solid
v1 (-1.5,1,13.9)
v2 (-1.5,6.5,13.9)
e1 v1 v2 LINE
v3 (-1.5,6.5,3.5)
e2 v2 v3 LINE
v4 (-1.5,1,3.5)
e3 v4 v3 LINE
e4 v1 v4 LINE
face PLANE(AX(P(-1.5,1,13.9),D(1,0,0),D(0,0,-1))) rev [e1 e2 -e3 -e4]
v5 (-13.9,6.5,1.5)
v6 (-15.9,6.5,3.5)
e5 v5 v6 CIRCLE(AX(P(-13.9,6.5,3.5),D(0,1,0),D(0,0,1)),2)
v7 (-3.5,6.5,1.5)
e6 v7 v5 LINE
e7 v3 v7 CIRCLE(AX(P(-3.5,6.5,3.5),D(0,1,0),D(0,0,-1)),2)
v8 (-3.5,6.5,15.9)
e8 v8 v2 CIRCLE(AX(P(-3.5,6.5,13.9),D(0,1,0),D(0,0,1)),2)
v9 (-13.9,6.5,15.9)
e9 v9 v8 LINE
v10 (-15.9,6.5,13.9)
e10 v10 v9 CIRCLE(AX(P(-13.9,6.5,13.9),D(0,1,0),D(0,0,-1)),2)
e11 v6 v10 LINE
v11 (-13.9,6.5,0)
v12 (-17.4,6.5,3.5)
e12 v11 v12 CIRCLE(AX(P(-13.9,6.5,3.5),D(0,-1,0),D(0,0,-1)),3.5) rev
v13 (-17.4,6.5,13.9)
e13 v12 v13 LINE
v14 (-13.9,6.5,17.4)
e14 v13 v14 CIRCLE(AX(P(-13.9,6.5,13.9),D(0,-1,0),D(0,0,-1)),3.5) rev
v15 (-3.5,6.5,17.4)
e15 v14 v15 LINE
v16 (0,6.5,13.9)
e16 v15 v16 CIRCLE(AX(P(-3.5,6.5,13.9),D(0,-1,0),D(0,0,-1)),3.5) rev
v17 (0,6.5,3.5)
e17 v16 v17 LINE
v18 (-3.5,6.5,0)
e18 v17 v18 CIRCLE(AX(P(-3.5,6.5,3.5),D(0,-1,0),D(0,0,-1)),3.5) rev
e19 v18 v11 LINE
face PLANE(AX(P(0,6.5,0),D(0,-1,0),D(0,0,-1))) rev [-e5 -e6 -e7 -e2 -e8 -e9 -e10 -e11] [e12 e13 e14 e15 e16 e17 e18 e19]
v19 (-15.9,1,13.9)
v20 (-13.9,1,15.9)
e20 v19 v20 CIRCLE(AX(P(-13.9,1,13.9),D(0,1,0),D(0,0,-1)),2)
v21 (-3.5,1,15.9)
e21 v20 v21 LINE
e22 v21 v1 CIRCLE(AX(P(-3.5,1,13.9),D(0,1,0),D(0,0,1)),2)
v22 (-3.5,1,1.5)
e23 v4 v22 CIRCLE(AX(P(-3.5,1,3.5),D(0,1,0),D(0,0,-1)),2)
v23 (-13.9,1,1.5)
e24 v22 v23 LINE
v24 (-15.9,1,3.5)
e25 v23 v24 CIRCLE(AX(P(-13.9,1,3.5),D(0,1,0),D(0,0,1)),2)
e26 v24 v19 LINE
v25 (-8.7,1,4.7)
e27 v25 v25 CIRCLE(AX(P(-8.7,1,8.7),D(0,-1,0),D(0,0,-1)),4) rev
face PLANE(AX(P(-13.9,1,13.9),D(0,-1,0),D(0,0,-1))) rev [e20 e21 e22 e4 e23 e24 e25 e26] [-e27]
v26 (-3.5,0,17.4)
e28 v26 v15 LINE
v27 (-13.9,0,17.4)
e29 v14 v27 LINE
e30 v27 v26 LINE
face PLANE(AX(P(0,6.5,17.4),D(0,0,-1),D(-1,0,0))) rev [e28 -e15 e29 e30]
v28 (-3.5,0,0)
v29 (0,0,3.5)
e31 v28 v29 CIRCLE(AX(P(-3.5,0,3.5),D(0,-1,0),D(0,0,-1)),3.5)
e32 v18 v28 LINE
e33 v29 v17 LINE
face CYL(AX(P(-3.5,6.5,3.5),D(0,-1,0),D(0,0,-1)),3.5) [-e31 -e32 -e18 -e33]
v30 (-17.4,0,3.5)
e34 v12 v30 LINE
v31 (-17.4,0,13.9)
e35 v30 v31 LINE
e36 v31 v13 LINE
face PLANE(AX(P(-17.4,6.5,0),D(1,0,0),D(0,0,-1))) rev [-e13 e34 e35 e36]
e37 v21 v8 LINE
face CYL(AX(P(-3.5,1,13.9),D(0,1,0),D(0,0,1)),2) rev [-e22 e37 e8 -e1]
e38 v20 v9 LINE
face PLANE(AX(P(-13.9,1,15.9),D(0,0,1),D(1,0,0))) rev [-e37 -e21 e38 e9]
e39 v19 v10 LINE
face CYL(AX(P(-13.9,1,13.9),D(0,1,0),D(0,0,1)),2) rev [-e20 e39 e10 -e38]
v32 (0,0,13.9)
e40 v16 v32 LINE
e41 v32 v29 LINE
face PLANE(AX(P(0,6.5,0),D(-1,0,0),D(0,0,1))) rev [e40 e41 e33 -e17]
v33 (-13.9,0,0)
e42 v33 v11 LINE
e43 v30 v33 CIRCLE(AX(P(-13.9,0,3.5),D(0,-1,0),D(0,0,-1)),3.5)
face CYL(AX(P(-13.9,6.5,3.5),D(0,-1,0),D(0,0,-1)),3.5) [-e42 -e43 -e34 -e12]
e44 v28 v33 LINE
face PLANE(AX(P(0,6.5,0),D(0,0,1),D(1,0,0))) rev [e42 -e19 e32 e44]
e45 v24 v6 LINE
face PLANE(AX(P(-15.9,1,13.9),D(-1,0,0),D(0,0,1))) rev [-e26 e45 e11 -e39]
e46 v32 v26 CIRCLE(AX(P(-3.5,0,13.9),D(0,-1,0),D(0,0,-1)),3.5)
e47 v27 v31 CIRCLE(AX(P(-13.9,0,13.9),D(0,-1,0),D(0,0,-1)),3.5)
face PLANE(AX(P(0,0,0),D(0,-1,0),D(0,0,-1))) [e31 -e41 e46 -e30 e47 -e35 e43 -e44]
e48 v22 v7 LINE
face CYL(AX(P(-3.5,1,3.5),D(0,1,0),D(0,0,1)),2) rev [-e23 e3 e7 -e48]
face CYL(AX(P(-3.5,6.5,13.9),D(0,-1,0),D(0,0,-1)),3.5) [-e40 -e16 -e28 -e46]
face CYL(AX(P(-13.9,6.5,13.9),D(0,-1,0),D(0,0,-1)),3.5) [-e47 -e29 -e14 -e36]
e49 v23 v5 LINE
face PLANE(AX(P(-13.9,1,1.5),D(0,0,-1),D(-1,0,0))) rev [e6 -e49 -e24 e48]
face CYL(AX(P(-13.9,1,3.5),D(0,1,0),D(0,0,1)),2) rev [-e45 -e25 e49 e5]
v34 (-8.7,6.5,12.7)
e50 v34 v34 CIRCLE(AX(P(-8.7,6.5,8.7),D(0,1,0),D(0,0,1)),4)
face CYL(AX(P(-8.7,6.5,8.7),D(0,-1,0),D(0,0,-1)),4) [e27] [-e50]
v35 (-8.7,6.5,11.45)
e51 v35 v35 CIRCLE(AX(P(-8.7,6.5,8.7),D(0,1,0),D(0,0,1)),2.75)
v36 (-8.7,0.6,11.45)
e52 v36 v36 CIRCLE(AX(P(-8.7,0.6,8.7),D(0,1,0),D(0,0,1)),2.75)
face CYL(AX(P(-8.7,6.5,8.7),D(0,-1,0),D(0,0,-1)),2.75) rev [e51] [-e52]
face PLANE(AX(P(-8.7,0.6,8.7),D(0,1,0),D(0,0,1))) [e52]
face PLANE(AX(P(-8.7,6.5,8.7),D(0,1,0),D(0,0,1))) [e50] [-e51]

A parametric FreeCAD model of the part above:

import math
import FreeCAD as App
import Part
import Sketcher

V = App.Vector


def edges_at(feature, points):
    """Names of the edges that pass closest to the given points."""
    edges = feature.Shape.Edges
    near = lambda p: min(range(len(edges)), key=lambda i: edges[i].distToShape(Part.Vertex(*p))[0])
    return sorted({f"Edge{near(p) + 1}" for p in points})

doc = App.newDocument("Part")
body = doc.addObject("PartDesign::Body", "Body")

# Sketch on XZ plane
sketch1 = body.newObject("Sketcher::SketchObject", "Sketch")
sketch1.AttachmentSupport = (doc.getObject("XZ_Plane"), [""])
sketch1.MapMode = "FlatFace"
sketch1.addGeometry(Part.LineSegment(V(-17, 0, 0), V(-17, 17, 0)), False)
sketch1.addGeometry(Part.LineSegment(V(-17, 17, 0), V(0, 17, 0)), False)
sketch1.addGeometry(Part.LineSegment(V(0, 17, 0), V(0, 0, 0)), False)
sketch1.addGeometry(Part.LineSegment(V(0, 0, 0), V(-17, 0, 0)), False)
sketch1.addConstraint(Sketcher.Constraint("Coincident", 0, 2, 1, 1))
sketch1.addConstraint(Sketcher.Constraint("Coincident", 1, 2, 2, 1))
sketch1.addConstraint(Sketcher.Constraint("Coincident", 2, 2, 3, 1))
sketch1.addConstraint(Sketcher.Constraint("Coincident", 3, 2, 0, 1))
sketch1.addConstraint(Sketcher.Constraint("Vertical", 0))
sketch1.addConstraint(Sketcher.Constraint("Horizontal", 1))
sketch1.addConstraint(Sketcher.Constraint("Vertical", 2))
sketch1.addConstraint(Sketcher.Constraint("Horizontal", 3))
sketch1.addConstraint(Sketcher.Constraint("Coincident", 2, 2, -1, 1))
sketch1.addConstraint(Sketcher.Constraint("Equal", 3, 0))
sketch1.addConstraint(Sketcher.Constraint("DistanceX", 1, 1, 1, 2, 17.4))
pad1 = body.newObject("PartDesign::Pad", "Pad")
pad1.Profile = sketch1
pad1.Length = 6.5
pad1.Reversed = True
doc.recompute()

fillet = body.newObject("PartDesign::Fillet", "Fillet")
fillet.Base = (pad1, edges_at(pad1, [
    (0, 3.25, 17.4),
    (-17.4, 3.25, 17.4),
    (-17.4, 3.25, 0),
    (0, 3.25, 0),
]))
fillet.Radius = 3.5

# Sketch on XZ plane
sketch2 = body.newObject("Sketcher::SketchObject", "Sketch001")
sketch2.AttachmentSupport = (doc.getObject("XZ_Plane"), [""])
sketch2.MapMode = "FlatFace"
sketch2.AttachmentOffset = App.Placement(V(0, 0, -6.5), App.Rotation())
sketch2.addGeometry(Part.LineSegment(V(-13.9, 15.9, 0), V(-3.5, 15.9, 0)), False)
sketch2.addGeometry(Part.ArcOfCircle(Part.Circle(V(-3.5, 13.9, 0), V(0, 0, 1), 2), math.radians(0), math.radians(90)), False)
sketch2.addGeometry(Part.LineSegment(V(-1.5, 13.9, 0), V(-1.5, 3.5, 0)), False)
sketch2.addGeometry(Part.ArcOfCircle(Part.Circle(V(-3.5, 3.5, 0), V(0, 0, 1), 2), math.radians(-90), math.radians(0)), False)
sketch2.addGeometry(Part.LineSegment(V(-3.5, 1.5, 0), V(-13.9, 1.5, 0)), False)
sketch2.addGeometry(Part.ArcOfCircle(Part.Circle(V(-13.9, 3.5, 0), V(0, 0, 1), 2), math.radians(-180), math.radians(-90)), False)
sketch2.addGeometry(Part.LineSegment(V(-15.9, 3.5, 0), V(-15.9, 13.9, 0)), False)
sketch2.addGeometry(Part.ArcOfCircle(Part.Circle(V(-13.9, 13.9, 0), V(0, 0, 1), 2), math.radians(90), math.radians(180)), False)
sketch2.addConstraint(Sketcher.Constraint("Tangent", 0, 2, 1, 2))
sketch2.addConstraint(Sketcher.Constraint("Tangent", 1, 1, 2, 1))
sketch2.addConstraint(Sketcher.Constraint("Tangent", 2, 2, 3, 2))
sketch2.addConstraint(Sketcher.Constraint("Tangent", 3, 1, 4, 1))
sketch2.addConstraint(Sketcher.Constraint("Tangent", 4, 2, 5, 2))
sketch2.addConstraint(Sketcher.Constraint("Tangent", 5, 1, 6, 1))
sketch2.addConstraint(Sketcher.Constraint("Tangent", 6, 2, 7, 2))
sketch2.addConstraint(Sketcher.Constraint("Tangent", 7, 1, 0, 1))
sketch2.addConstraint(Sketcher.Constraint("Horizontal", 0))
sketch2.addConstraint(Sketcher.Constraint("Vertical", 2))
sketch2.addConstraint(Sketcher.Constraint("Horizontal", 4))
sketch2.addConstraint(Sketcher.Constraint("Vertical", 6))
sketch2.addConstraint(Sketcher.Constraint("Equal", 1, 3))
sketch2.addConstraint(Sketcher.Constraint("Equal", 3, 5))
sketch2.addConstraint(Sketcher.Constraint("Equal", 5, 7))
sketch2.addConstraint(Sketcher.Constraint("Equal", 4, 2))
sketch2.addConstraint(Sketcher.Constraint("Radius", 1, 2.0))
sketch2.addConstraint(Sketcher.Constraint("DistanceX", 0, 1, 0, 2, 10.4))
sketch2.addConstraint(Sketcher.Constraint("DistanceX", 1, 3, -1, 1, 3.5))
sketch2.addConstraint(Sketcher.Constraint("DistanceY", -1, 1, 1, 3, 13.9))
pocket1 = body.newObject("PartDesign::Pocket", "Pocket")
pocket1.Profile = sketch2
pocket1.Length = 5.5
pocket1.Reversed = True

# Sketch on XZ plane
sketch3 = body.newObject("Sketcher::SketchObject", "Sketch002")
sketch3.AttachmentSupport = (doc.getObject("XZ_Plane"), [""])
sketch3.MapMode = "FlatFace"
sketch3.AttachmentOffset = App.Placement(V(0, 0, -1), App.Rotation())
sketch3.addGeometry(Part.Circle(V(-8.7, 8.7, 0), V(0, 0, 1), 4), False)
sketch3.addGeometry(Part.Circle(V(-8.7, 8.7, 0), V(0, 0, 1), 2.8), False)
sketch3.addConstraint(Sketcher.Constraint("Coincident", 1, 3, 0, 3))
sketch3.addConstraint(Sketcher.Constraint("Diameter", 0, 8.0))
sketch3.addConstraint(Sketcher.Constraint("Diameter", 1, 5.5))
sketch3.addConstraint(Sketcher.Constraint("DistanceX", 0, 3, -1, 1, 8.7))
sketch3.addConstraint(Sketcher.Constraint("DistanceY", -1, 1, 0, 3, 8.7))
pad2 = body.newObject("PartDesign::Pad", "Pad001")
pad2.Profile = sketch3
pad2.Length = 5.5
pad2.Reversed = True

# Sketch on XZ plane
sketch4 = body.newObject("Sketcher::SketchObject", "Sketch003")
sketch4.AttachmentSupport = (doc.getObject("XZ_Plane"), [""])
sketch4.MapMode = "FlatFace"
sketch4.AttachmentOffset = App.Placement(V(0, 0, -1), App.Rotation())
sketch4.addGeometry(Part.Circle(V(-8.7, 8.7, 0), V(0, 0, 1), 2.8), False)
sketch4.addConstraint(Sketcher.Constraint("Diameter", 0, 5.5))
sketch4.addConstraint(Sketcher.Constraint("DistanceX", 0, 3, -1, 1, 8.7))
sketch4.addConstraint(Sketcher.Constraint("DistanceY", -1, 1, 0, 3, 8.7))
pocket2 = body.newObject("PartDesign::Pocket", "Pocket001")
pocket2.Profile = sketch4
pocket2.Length = 0.4
pocket2.Reversed = True

doc.recompute()
